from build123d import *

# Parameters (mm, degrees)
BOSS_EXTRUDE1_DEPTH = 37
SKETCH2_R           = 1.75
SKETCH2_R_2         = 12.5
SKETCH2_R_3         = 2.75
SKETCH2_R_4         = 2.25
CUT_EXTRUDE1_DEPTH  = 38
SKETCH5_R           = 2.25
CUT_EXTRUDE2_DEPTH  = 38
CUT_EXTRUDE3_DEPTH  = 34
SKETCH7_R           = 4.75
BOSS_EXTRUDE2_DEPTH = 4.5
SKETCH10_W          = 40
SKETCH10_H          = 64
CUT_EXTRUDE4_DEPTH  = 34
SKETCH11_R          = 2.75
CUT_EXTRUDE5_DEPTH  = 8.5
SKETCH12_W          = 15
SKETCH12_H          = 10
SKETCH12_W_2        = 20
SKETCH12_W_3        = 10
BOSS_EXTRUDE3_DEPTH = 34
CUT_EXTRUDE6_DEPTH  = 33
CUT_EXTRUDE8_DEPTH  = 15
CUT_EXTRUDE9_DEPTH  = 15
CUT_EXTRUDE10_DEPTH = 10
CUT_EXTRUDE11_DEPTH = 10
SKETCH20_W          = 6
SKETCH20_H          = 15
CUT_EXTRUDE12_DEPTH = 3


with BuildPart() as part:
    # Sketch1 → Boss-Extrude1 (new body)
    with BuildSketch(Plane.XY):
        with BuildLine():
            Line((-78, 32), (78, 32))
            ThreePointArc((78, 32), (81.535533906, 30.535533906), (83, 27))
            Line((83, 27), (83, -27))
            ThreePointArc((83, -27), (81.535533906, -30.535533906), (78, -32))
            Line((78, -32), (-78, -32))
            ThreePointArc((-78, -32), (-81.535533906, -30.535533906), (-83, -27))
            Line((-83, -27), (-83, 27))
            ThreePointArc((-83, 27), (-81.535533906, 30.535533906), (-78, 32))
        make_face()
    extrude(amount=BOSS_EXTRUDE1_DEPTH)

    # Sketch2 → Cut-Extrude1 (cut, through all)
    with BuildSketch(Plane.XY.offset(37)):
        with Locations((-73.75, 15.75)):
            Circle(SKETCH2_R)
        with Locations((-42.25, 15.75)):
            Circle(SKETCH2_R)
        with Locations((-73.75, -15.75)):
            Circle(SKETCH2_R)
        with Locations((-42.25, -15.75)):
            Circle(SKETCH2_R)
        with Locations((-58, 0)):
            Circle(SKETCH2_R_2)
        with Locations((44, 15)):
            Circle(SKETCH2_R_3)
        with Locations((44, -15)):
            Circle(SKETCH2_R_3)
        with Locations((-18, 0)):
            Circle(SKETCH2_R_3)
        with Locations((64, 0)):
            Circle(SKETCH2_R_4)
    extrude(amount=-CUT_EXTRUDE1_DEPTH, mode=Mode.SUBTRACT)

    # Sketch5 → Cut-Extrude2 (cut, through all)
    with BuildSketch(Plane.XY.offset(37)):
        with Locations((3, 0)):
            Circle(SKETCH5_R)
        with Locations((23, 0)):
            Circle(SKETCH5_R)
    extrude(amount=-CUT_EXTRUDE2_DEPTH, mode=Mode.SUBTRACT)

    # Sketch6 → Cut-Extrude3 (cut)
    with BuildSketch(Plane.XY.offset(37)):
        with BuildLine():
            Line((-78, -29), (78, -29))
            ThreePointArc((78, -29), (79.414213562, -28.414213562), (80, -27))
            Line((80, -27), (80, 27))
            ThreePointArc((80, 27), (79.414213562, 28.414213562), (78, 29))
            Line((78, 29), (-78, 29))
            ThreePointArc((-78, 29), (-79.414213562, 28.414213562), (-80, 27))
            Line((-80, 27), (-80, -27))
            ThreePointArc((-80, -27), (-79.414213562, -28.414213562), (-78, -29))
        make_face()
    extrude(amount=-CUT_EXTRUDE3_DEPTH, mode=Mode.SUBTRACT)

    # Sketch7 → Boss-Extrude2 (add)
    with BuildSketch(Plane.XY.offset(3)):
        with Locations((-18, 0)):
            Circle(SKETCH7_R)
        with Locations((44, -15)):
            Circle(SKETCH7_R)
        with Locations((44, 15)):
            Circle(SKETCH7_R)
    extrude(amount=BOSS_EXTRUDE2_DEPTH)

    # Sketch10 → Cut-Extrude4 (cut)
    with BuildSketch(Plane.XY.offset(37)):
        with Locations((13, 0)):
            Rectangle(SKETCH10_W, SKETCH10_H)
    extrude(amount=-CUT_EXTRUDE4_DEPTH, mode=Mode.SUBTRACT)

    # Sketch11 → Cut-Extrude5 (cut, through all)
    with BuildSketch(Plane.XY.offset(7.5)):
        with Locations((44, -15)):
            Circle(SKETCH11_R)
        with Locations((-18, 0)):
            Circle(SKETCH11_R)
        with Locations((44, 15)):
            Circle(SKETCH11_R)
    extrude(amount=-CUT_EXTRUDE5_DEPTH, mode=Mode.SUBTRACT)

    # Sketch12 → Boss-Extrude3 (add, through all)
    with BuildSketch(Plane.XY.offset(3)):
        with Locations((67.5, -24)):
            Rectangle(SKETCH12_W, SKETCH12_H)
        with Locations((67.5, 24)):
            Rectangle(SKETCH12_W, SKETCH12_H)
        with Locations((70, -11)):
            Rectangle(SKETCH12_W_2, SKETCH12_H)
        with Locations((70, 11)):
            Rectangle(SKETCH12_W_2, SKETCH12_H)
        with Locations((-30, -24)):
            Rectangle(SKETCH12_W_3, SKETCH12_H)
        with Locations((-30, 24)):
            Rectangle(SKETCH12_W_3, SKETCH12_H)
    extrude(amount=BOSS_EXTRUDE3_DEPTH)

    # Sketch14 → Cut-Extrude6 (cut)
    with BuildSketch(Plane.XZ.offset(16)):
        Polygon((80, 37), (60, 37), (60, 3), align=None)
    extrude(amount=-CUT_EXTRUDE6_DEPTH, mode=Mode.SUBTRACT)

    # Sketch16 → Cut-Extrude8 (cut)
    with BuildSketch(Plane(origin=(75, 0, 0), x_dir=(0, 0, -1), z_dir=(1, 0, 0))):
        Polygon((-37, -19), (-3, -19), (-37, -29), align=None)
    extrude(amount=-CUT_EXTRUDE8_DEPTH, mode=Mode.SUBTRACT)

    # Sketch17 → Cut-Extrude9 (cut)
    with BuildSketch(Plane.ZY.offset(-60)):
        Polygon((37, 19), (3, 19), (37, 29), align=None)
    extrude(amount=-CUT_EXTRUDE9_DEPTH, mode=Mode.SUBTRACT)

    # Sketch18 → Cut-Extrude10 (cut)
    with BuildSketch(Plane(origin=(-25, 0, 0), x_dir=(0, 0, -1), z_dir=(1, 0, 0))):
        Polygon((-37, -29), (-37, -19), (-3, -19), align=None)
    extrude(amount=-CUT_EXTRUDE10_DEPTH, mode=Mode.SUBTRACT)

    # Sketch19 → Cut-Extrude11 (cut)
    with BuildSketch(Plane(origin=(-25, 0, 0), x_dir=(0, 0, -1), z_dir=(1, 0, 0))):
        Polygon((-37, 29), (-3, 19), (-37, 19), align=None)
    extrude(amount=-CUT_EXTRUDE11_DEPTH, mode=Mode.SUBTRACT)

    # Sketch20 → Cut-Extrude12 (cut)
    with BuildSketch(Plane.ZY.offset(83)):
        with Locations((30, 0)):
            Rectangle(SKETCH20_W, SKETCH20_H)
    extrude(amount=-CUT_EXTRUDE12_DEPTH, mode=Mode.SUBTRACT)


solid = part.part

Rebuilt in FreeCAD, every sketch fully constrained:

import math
import FreeCAD as App
import Part
import Sketcher
from FreeCAD import Vector
Q = App.Units.Quantity

doc = App.newDocument("Part")
body = doc.addObject("PartDesign::Body", "Body")

# Sketch on XY plane
sketch1 = doc.addObject("Sketcher::SketchObject", "Sketch")
body.addObject(sketch1)
sketch1.AttachmentSupport = (doc.XY_Plane, [""])
sketch1.MapMode = "FlatFace"
sketch1.addGeometry([
    Part.LineSegment(Vector(78, 32, 0), Vector(-78, 32, 0)),  # 0
    Part.ArcOfCircle(Part.Circle(Vector(-78, 27, 0), Vector(0, 0, 1), 5), math.radians(90), math.radians(180)),  # 1
    Part.LineSegment(Vector(-83, 27, 0), Vector(-83, -27, 0)),  # 2
    Part.ArcOfCircle(Part.Circle(Vector(-78, -27, 0), Vector(0, 0, 1), 5), math.radians(180), math.radians(270)),  # 3
    Part.LineSegment(Vector(-78, -32, 0), Vector(78, -32, 0)),  # 4
    Part.ArcOfCircle(Part.Circle(Vector(78, -27, 0), Vector(0, 0, 1), 5), math.radians(-90), math.radians(0)),  # 5
    Part.LineSegment(Vector(83, -27, 0), Vector(83, 27, 0)),  # 6
    Part.ArcOfCircle(Part.Circle(Vector(78, 27, 0), Vector(0, 0, 1), 5), math.radians(0), math.radians(90)),  # 7
], False)
sketch1.addConstraint([
    Sketcher.Constraint("Tangent", 0, 2, 1, 1),
    Sketcher.Constraint("Tangent", 1, 2, 2, 1),
    Sketcher.Constraint("Tangent", 2, 2, 3, 1),
    Sketcher.Constraint("Tangent", 3, 2, 4, 1),
    Sketcher.Constraint("Tangent", 4, 2, 5, 1),
    Sketcher.Constraint("Tangent", 5, 2, 6, 1),
    Sketcher.Constraint("Tangent", 6, 2, 7, 1),
    Sketcher.Constraint("Tangent", 7, 2, 0, 1),
    Sketcher.Constraint("Horizontal", 0),
    Sketcher.Constraint("Vertical", 2),
    Sketcher.Constraint("Horizontal", 4),
    Sketcher.Constraint("Vertical", 6),
    Sketcher.Constraint("Equal", 1, 3),
    Sketcher.Constraint("Equal", 3, 5),
    Sketcher.Constraint("Equal", 5, 7),
    Sketcher.Constraint("Symmetric", 1, 3, 5, 3, -1, 1),
    Sketcher.Constraint("Radius", 1, Q("5 mm")),
    Sketcher.Constraint("DistanceX", 0, 2, 0, 1, Q("156 mm")),
    Sketcher.Constraint("DistanceY", 2, 2, 2, 1, Q("54 mm")),
])
pad1 = doc.addObject("PartDesign::Pad", "Pad")
body.addObject(pad1)
pad1.Profile = sketch1
pad1.Length = 37

# Sketch on XY plane
sketch2 = doc.addObject("Sketcher::SketchObject", "Sketch001")
body.addObject(sketch2)
sketch2.AttachmentSupport = (doc.XY_Plane, [""])
sketch2.MapMode = "FlatFace"
sketch2.AttachmentOffset = App.Placement(Vector(0, 0, 37), App.Rotation())
sketch2.addGeometry([
    Part.Circle(Vector(-73.8, 15.8, 0), Vector(0, 0, 1), 1.8),  # 0
    Part.Circle(Vector(-42.2, 15.8, 0), Vector(0, 0, 1), 1.8),  # 1
    Part.Circle(Vector(-73.8, -15.8, 0), Vector(0, 0, 1), 1.8),  # 2
    Part.Circle(Vector(-42.2, -15.8, 0), Vector(0, 0, 1), 1.8),  # 3
    Part.Circle(Vector(-58, 0, 0), Vector(0, 0, 1), 12.5),  # 4
    Part.Circle(Vector(44, 15, 0), Vector(0, 0, 1), 2.8),  # 5
    Part.Circle(Vector(44, -15, 0), Vector(0, 0, 1), 2.8),  # 6
    Part.Circle(Vector(-18, 0, 0), Vector(0, 0, 1), 2.8),  # 7
    Part.Circle(Vector(64, 0, 0), Vector(0, 0, 1), 2.2),  # 8
], False)
sketch2.addConstraint([
    Sketcher.Constraint("Equal", 0, 1),
    Sketcher.Constraint("Equal", 1, 2),
    Sketcher.Constraint("Equal", 2, 3),
    Sketcher.Constraint("Equal", 5, 6),
    Sketcher.Constraint("Equal", 6, 7),
    Sketcher.Constraint("Symmetric", 0, 3, 2, 3, -1),
    Sketcher.Constraint("Symmetric", 1, 3, 3, 3, -1),
    Sketcher.Constraint("Symmetric", 5, 3, 6, 3, -1),
    Sketcher.Constraint("PointOnObject", 4, 3, -1),
    Sketcher.Constraint("PointOnObject", 7, 3, -1),
    Sketcher.Constraint("PointOnObject", 8, 3, -1),
    Sketcher.Constraint("Horizontal", 0, 3, 1, 3),
    Sketcher.Constraint("Diameter", 4, Q("25 mm")),
    Sketcher.Constraint("Diameter", 0, Q("3.5 mm")),
    Sketcher.Constraint("Diameter", 5, Q("5.5 mm")),
    Sketcher.Constraint("Diameter", 8, Q("4.5 mm")),
    Sketcher.Constraint("DistanceX", 4, 3, -1, 1, Q("58 mm")),
    Sketcher.Constraint("DistanceX", -1, 1, 5, 3, Q("44 mm")),
    Sketcher.Constraint("DistanceY", -1, 1, 5, 3, Q("15 mm")),
    Sketcher.Constraint("DistanceX", 7, 3, -1, 1, Q("18 mm")),
    Sketcher.Constraint("DistanceX", -1, 1, 8, 3, Q("64 mm")),
    Sketcher.Constraint("DistanceX", 0, 3, 1, 3, Q("31.5 mm")),
    Sketcher.Constraint("DistanceY", 2, 3, 0, 3, Q("31.5 mm")),
    Sketcher.Constraint("DistanceX", 0, 3, -1, 1, Q("73.75 mm")),
])
pocket1 = doc.addObject("PartDesign::Pocket", "Pocket")
body.addObject(pocket1)
pocket1.Profile = sketch2
pocket1.Type = "ThroughAll"

# Sketch on XY plane
sketch3 = doc.addObject("Sketcher::SketchObject", "Sketch002")
body.addObject(sketch3)
sketch3.AttachmentSupport = (doc.XY_Plane, [""])
sketch3.MapMode = "FlatFace"
sketch3.AttachmentOffset = App.Placement(Vector(0, 0, 37), App.Rotation())
sketch3.addGeometry([
    Part.Circle(Vector(3, 0, 0), Vector(0, 0, 1), 2.2),
    Part.Circle(Vector(23, 0, 0), Vector(0, 0, 1), 2.2),
], False)
sketch3.addConstraint([
    Sketcher.Constraint("Equal", 0, 1),
    Sketcher.Constraint("PointOnObject", 0, 3, -1),
    Sketcher.Constraint("PointOnObject", 1, 3, -1),
    Sketcher.Constraint("Diameter", 0, Q("4.5 mm")),
    Sketcher.Constraint("DistanceX", -1, 1, 0, 3, Q("3 mm")),
    Sketcher.Constraint("DistanceX", -1, 1, 1, 3, Q("23 mm")),
])
pocket2 = doc.addObject("PartDesign::Pocket", "Pocket001")
body.addObject(pocket2)
pocket2.Profile = sketch3
pocket2.Type = "ThroughAll"

# Sketch on XY plane
sketch4 = doc.addObject("Sketcher::SketchObject", "Sketch003")
body.addObject(sketch4)
sketch4.AttachmentSupport = (doc.XY_Plane, [""])
sketch4.MapMode = "FlatFace"
sketch4.AttachmentOffset = App.Placement(Vector(0, 0, 37), App.Rotation())
sketch4.addGeometry([
    Part.LineSegment(Vector(-78, -29, 0), Vector(78, -29, 0)),  # 0
    Part.ArcOfCircle(Part.Circle(Vector(78, -27, 0), Vector(0, 0, 1), 2), math.radians(-90), math.radians(0)),  # 1
    Part.LineSegment(Vector(80, -27, 0), Vector(80, 27, 0)),  # 2
    Part.ArcOfCircle(Part.Circle(Vector(78, 27, 0), Vector(0, 0, 1), 2), math.radians(0), math.radians(90)),  # 3
    Part.LineSegment(Vector(78, 29, 0), Vector(-78, 29, 0)),  # 4
    Part.ArcOfCircle(Part.Circle(Vector(-78, 27, 0), Vector(0, 0, 1), 2), math.radians(90), math.radians(180)),  # 5
    Part.LineSegment(Vector(-80, 27, 0), Vector(-80, -27, 0)),  # 6
    Part.ArcOfCircle(Part.Circle(Vector(-78, -27, 0), Vector(0, 0, 1), 2), math.radians(-180), math.radians(-90)),  # 7
], False)
sketch4.addConstraint([
    Sketcher.Constraint("Tangent", 0, 2, 1, 1),
    Sketcher.Constraint("Tangent", 1, 2, 2, 1),
    Sketcher.Constraint("Tangent", 2, 2, 3, 1),
    Sketcher.Constraint("Tangent", 3, 2, 4, 1),
    Sketcher.Constraint("Tangent", 4, 2, 5, 1),
    Sketcher.Constraint("Tangent", 5, 2, 6, 1),
    Sketcher.Constraint("Tangent", 6, 2, 7, 1),
    Sketcher.Constraint("Tangent", 7, 2, 0, 1),
    Sketcher.Constraint("Horizontal", 0),
    Sketcher.Constraint("Vertical", 2),
    Sketcher.Constraint("Horizontal", 4),
    Sketcher.Constraint("Vertical", 6),
    Sketcher.Constraint("Equal", 1, 3),
    Sketcher.Constraint("Equal", 3, 5),
    Sketcher.Constraint("Equal", 5, 7),
    Sketcher.Constraint("Symmetric", 1, 3, 5, 3, -1, 1),
    Sketcher.Constraint("Radius", 1, Q("2 mm")),
    Sketcher.Constraint("DistanceX", 0, 1, 0, 2, Q("156 mm")),
    Sketcher.Constraint("DistanceY", 2, 1, 2, 2, Q("54 mm")),
])
pocket3 = doc.addObject("PartDesign::Pocket", "Pocket002")
body.addObject(pocket3)
pocket3.Profile = sketch4
pocket3.Length = 34

# Sketch on XY plane
sketch5 = doc.addObject("Sketcher::SketchObject", "Sketch004")
body.addObject(sketch5)
sketch5.AttachmentSupport = (doc.XY_Plane, [""])
sketch5.MapMode = "FlatFace"
sketch5.AttachmentOffset = App.Placement(Vector(0, 0, 3), App.Rotation())
sketch5.addGeometry([
    Part.Circle(Vector(-18, 0, 0), Vector(0, 0, 1), 4.8),
    Part.Circle(Vector(44, -15, 0), Vector(0, 0, 1), 4.8),
    Part.Circle(Vector(44, 15, 0), Vector(0, 0, 1), 4.8),
], False)
sketch5.addConstraint([
    Sketcher.Constraint("Equal", 0, 1),
    Sketcher.Constraint("Equal", 1, 2),
    Sketcher.Constraint("Symmetric", 1, 3, 2, 3, -1),
    Sketcher.Constraint("PointOnObject", 0, 3, -1),
    Sketcher.Constraint("Diameter", 0, Q("9.5 mm")),
    Sketcher.Constraint("DistanceX", 0, 3, -1, 1, Q("18 mm")),
    Sketcher.Constraint("DistanceX", -1, 1, 1, 3, Q("44 mm")),
    Sketcher.Constraint("DistanceY", 1, 3, -1, 1, Q("15 mm")),
])
pad2 = doc.addObject("PartDesign::Pad", "Pad001")
body.addObject(pad2)
pad2.Profile = sketch5
pad2.Length = 4.5

# Sketch on XY plane
sketch6 = doc.addObject("Sketcher::SketchObject", "Sketch005")
body.addObject(sketch6)
sketch6.AttachmentSupport = (doc.XY_Plane, [""])
sketch6.MapMode = "FlatFace"
sketch6.AttachmentOffset = App.Placement(Vector(0, 0, 37), App.Rotation())
sketch6.addGeometry([
    Part.LineSegment(Vector(-7, 32, 0), Vector(-7, -32, 0)),
    Part.LineSegment(Vector(-7, -32, 0), Vector(33, -32, 0)),
    Part.LineSegment(Vector(33, -32, 0), Vector(33, 32, 0)),
    Part.LineSegment(Vector(33, 32, 0), Vector(-7, 32, 0)),
], False)
sketch6.addConstraint([
    Sketcher.Constraint("Coincident", 0, 2, 1, 1),
    Sketcher.Constraint("Coincident", 1, 2, 2, 1),
    Sketcher.Constraint("Coincident", 2, 2, 3, 1),
    Sketcher.Constraint("Coincident", 3, 2, 0, 1),
    Sketcher.Constraint("Vertical", 0),
    Sketcher.Constraint("Horizontal", 1),
    Sketcher.Constraint("Vertical", 2),
    Sketcher.Constraint("Horizontal", 3),
    Sketcher.Constraint("DistanceX", 1, 1, 1, 2, Q("40 mm")),
    Sketcher.Constraint("DistanceY", 0, 2, 0, 1, Q("64 mm")),
    Sketcher.Constraint("DistanceX", 0, 2, -1, 1, Q("7 mm")),
    Sketcher.Constraint("DistanceY", 0, 2, -1, 1, Q("32 mm")),
])
pocket4 = doc.addObject("PartDesign::Pocket", "Pocket003")
body.addObject(pocket4)
pocket4.Profile = sketch6
pocket4.Length = 34

# Sketch on XY plane
sketch7 = doc.addObject("Sketcher::SketchObject", "Sketch006")
body.addObject(sketch7)
sketch7.AttachmentSupport = (doc.XY_Plane, [""])
sketch7.MapMode = "FlatFace"
sketch7.AttachmentOffset = App.Placement(Vector(0, 0, 7.5), App.Rotation())
sketch7.addGeometry([
    Part.Circle(Vector(44, -15, 0), Vector(0, 0, 1), 2.8),
    Part.Circle(Vector(-18, 0, 0), Vector(0, 0, 1), 2.8),
    Part.Circle(Vector(44, 15, 0), Vector(0, 0, 1), 2.8),
], False)
sketch7.addConstraint([
    Sketcher.Constraint("Equal", 0, 1),
    Sketcher.Constraint("Equal", 1, 2),
    Sketcher.Constraint("Symmetric", 0, 3, 2, 3, -1),
    Sketcher.Constraint("PointOnObject", 1, 3, -1),
    Sketcher.Constraint("Diameter", 0, Q("5.5 mm")),
    Sketcher.Constraint("DistanceX", -1, 1, 0, 3, Q("44 mm")),
    Sketcher.Constraint("DistanceY", 0, 3, -1, 1, Q("15 mm")),
    Sketcher.Constraint("DistanceX", 1, 3, -1, 1, Q("18 mm")),
])
pocket5 = doc.addObject("PartDesign::Pocket", "Pocket004")
body.addObject(pocket5)
pocket5.Profile = sketch7
pocket5.Type = "ThroughAll"

# Sketch on XY plane
sketch8 = doc.addObject("Sketcher::SketchObject", "Sketch007")
body.addObject(sketch8)
sketch8.AttachmentSupport = (doc.XY_Plane, [""])
sketch8.MapMode = "FlatFace"
sketch8.AttachmentOffset = App.Placement(Vector(0, 0, 3), App.Rotation())
sketch8.addGeometry([
    Part.LineSegment(Vector(60, -19, 0), Vector(60, -29, 0)),  # 0
    Part.LineSegment(Vector(60, -29, 0), Vector(75, -29, 0)),  # 1
    Part.LineSegment(Vector(75, -29, 0), Vector(75, -19, 0)),  # 2
    Part.LineSegment(Vector(75, -19, 0), Vector(60, -19, 0)),  # 3
    Part.LineSegment(Vector(60, 29, 0), Vector(60, 19, 0)),  # 4
    Part.LineSegment(Vector(60, 19, 0), Vector(75, 19, 0)),  # 5
    Part.LineSegment(Vector(75, 19, 0), Vector(75, 29, 0)),  # 6
    Part.LineSegment(Vector(75, 29, 0), Vector(60, 29, 0)),  # 7
    Part.LineSegment(Vector(60, -6, 0), Vector(60, -16, 0)),  # 8
    Part.LineSegment(Vector(60, -16, 0), Vector(80, -16, 0)),  # 9
    Part.LineSegment(Vector(80, -16, 0), Vector(80, -6, 0)),  # 10
    Part.LineSegment(Vector(80, -6, 0), Vector(60, -6, 0)),  # 11
    Part.LineSegment(Vector(60, 16, 0), Vector(60, 6, 0)),  # 12
    Part.LineSegment(Vector(60, 6, 0), Vector(80, 6, 0)),  # 13
    Part.LineSegment(Vector(80, 6, 0), Vector(80, 16, 0)),  # 14
    Part.LineSegment(Vector(80, 16, 0), Vector(60, 16, 0)),  # 15
    Part.LineSegment(Vector(-35, -19, 0), Vector(-35, -29, 0)),  # 16
    Part.LineSegment(Vector(-35, -29, 0), Vector(-25, -29, 0)),  # 17
    Part.LineSegment(Vector(-25, -29, 0), Vector(-25, -19, 0)),  # 18
    Part.LineSegment(Vector(-25, -19, 0), Vector(-35, -19, 0)),  # 19
    Part.LineSegment(Vector(-35, 29, 0), Vector(-35, 19, 0)),  # 20
    Part.LineSegment(Vector(-35, 19, 0), Vector(-25, 19, 0)),  # 21
    Part.LineSegment(Vector(-25, 19, 0), Vector(-25, 29, 0)),  # 22
    Part.LineSegment(Vector(-25, 29, 0), Vector(-35, 29, 0)),  # 23
], False)
sketch8.addConstraint([
    Sketcher.Constraint("Coincident", 0, 2, 1, 1),
    Sketcher.Constraint("Coincident", 1, 2, 2, 1),
    Sketcher.Constraint("Coincident", 2, 2, 3, 1),
    Sketcher.Constraint("Coincident", 3, 2, 0, 1),
    Sketcher.Constraint("Coincident", 4, 2, 5, 1),
    Sketcher.Constraint("Coincident", 5, 2, 6, 1),
    Sketcher.Constraint("Coincident", 6, 2, 7, 1),
    Sketcher.Constraint("Coincident", 7, 2, 4, 1),
    Sketcher.Constraint("Coincident", 8, 2, 9, 1),
    Sketcher.Constraint("Coincident", 9, 2, 10, 1),
    Sketcher.Constraint("Coincident", 10, 2, 11, 1),
    Sketcher.Constraint("Coincident", 11, 2, 8, 1),
    Sketcher.Constraint("Coincident", 12, 2, 13, 1),
    Sketcher.Constraint("Coincident", 13, 2, 14, 1),
    Sketcher.Constraint("Coincident", 14, 2, 15, 1),
    Sketcher.Constraint("Coincident", 15, 2, 12, 1),
    Sketcher.Constraint("Coincident", 16, 2, 17, 1),
    Sketcher.Constraint("Coincident", 17, 2, 18, 1),
    Sketcher.Constraint("Coincident", 18, 2, 19, 1),
    Sketcher.Constraint("Coincident", 19, 2, 16, 1),
    Sketcher.Constraint("Coincident", 20, 2, 21, 1),
    Sketcher.Constraint("Coincident", 21, 2, 22, 1),
    Sketcher.Constraint("Coincident", 22, 2, 23, 1),
    Sketcher.Constraint("Coincident", 23, 2, 20, 1),
    Sketcher.Constraint("Vertical", 0),
    Sketcher.Constraint("Horizontal", 1),
    Sketcher.Constraint("Vertical", 2),
    Sketcher.Constraint("Horizontal", 3),
    Sketcher.Constraint("Vertical", 4),
    Sketcher.Constraint("Horizontal", 5),
    Sketcher.Constraint("Vertical", 6),
    Sketcher.Constraint("Horizontal", 7),
    Sketcher.Constraint("Vertical", 8),
    Sketcher.Constraint("Horizontal", 9),
    Sketcher.Constraint("Vertical", 10),
    Sketcher.Constraint("Horizontal", 11),
    Sketcher.Constraint("Vertical", 12),
    Sketcher.Constraint("Horizontal", 13),
    Sketcher.Constraint("Vertical", 14),
    Sketcher.Constraint("Horizontal", 15),
    Sketcher.Constraint("Vertical", 16),
    Sketcher.Constraint("Horizontal", 17),
    Sketcher.Constraint("Vertical", 18),
    Sketcher.Constraint("Horizontal", 19),
    Sketcher.Constraint("Vertical", 20),
    Sketcher.Constraint("Horizontal", 21),
    Sketcher.Constraint("Vertical", 22),
    Sketcher.Constraint("Horizontal", 23),
    Sketcher.Constraint("Symmetric", 3, 2, 4, 2, -1),
    Sketcher.Constraint("Symmetric", 1, 2, 6, 2, -1),
    Sketcher.Constraint("Symmetric", 11, 2, 12, 2, -1),
    Sketcher.Constraint("Symmetric", 9, 2, 14, 2, -1),
    Sketcher.Constraint("Symmetric", 19, 2, 20, 2, -1),
    Sketcher.Constraint("Symmetric", 17, 2, 22, 2, -1),
    Sketcher.Constraint("Horizontal", 1, 2, 16, 2),
    Sketcher.Constraint("Horizontal", 3, 2, 18, 2),
    Sketcher.Constraint("Vertical", 7, 2, 8, 2),
    Sketcher.Constraint("Equal", 23, 0),
    Sketcher.Constraint("Equal", 6, 8),
    Sketcher.Constraint("DistanceX", 1, 1, 1, 2, Q("15 mm")),
    Sketcher.Constraint("DistanceX", 9, 1, 9, 2, Q("20 mm")),
    Sketcher.Constraint("DistanceX", 17, 1, 17, 2, Q("10 mm")),
    Sketcher.Constraint("DistanceX", -1, 1, 0, 2, Q("60 mm")),
    Sketcher.Constraint("DistanceY", 0, 2, -1, 1, Q("29 mm")),
    Sketcher.Constraint("DistanceY", 8, 2, -1, 1, Q("16 mm")),
    Sketcher.Constraint("DistanceX", 16, 2, -1, 1, Q("35 mm")),
])
pad3 = doc.addObject("PartDesign::Pad", "Pad002")
body.addObject(pad3)
pad3.Profile = sketch8
pad3.Length = 34

# Sketch on XZ plane
sketch9 = doc.addObject("Sketcher::SketchObject", "Sketch008")
body.addObject(sketch9)
sketch9.AttachmentSupport = (doc.XZ_Plane, [""])
sketch9.MapMode = "FlatFace"
sketch9.AttachmentOffset = App.Placement(Vector(0, 0, 16), App.Rotation())
sketch9.addGeometry([
    Part.LineSegment(Vector(80, 37, 0), Vector(60, 37, 0)),
    Part.LineSegment(Vector(60, 37, 0), Vector(60, 3, 0)),
    Part.LineSegment(Vector(60, 3, 0), Vector(80, 37, 0)),
], False)
sketch9.addConstraint([
    Sketcher.Constraint("Coincident", 0, 2, 1, 1),
    Sketcher.Constraint("Coincident", 1, 2, 2, 1),
    Sketcher.Constraint("Coincident", 2, 2, 0, 1),
    Sketcher.Constraint("Horizontal", 0),
    Sketcher.Constraint("Vertical", 1),
    Sketcher.Constraint("DistanceX", 0, 2, 0, 1, Q("20 mm")),
    Sketcher.Constraint("DistanceY", 1, 2, 1, 1, Q("34 mm")),
    Sketcher.Constraint("DistanceX", -1, 1, 0, 2, Q("60 mm")),
    Sketcher.Constraint("DistanceY", -1, 1, 0, 2, Q("37 mm")),
])
pocket6 = doc.addObject("PartDesign::Pocket", "Pocket005")
body.addObject(pocket6)
pocket6.Profile = sketch9
pocket6.Length = 33

# Sketch on YZ plane
sketch10 = doc.addObject("Sketcher::SketchObject", "Sketch009")
body.addObject(sketch10)
sketch10.AttachmentSupport = (doc.YZ_Plane, [""])
sketch10.MapMode = "FlatFace"
sketch10.AttachmentOffset = App.Placement(Vector(0, 0, 75), App.Rotation())
sketch10.addGeometry([
    Part.LineSegment(Vector(-19, 3, 0), Vector(-19, 37, 0)),
    Part.LineSegment(Vector(-19, 37, 0), Vector(-29, 37, 0)),
    Part.LineSegment(Vector(-29, 37, 0), Vector(-19, 3, 0)),
], False)
sketch10.addConstraint([
    Sketcher.Constraint("Coincident", 0, 2, 1, 1),
    Sketcher.Constraint("Coincident", 1, 2, 2, 1),
    Sketcher.Constraint("Coincident", 2, 2, 0, 1),
    Sketcher.Constraint("Vertical", 0),
    Sketcher.Constraint("Horizontal", 1),
    Sketcher.Constraint("DistanceX", 1, 2, 1, 1, Q("10 mm")),
    Sketcher.Constraint("DistanceY", 0, 1, 0, 2, Q("34 mm")),
    Sketcher.Constraint("DistanceX", 0, 2, -1, 1, Q("19 mm")),
    Sketcher.Constraint("DistanceY", -1, 1, 0, 2, Q("37 mm")),
])
pocket7 = doc.addObject("PartDesign::Pocket", "Pocket006")
body.addObject(pocket7)
pocket7.Profile = sketch10
pocket7.Length = 15

# Sketch on YZ plane
sketch11 = doc.addObject("Sketcher::SketchObject", "Sketch010")
body.addObject(sketch11)
sketch11.AttachmentSupport = (doc.YZ_Plane, [""])
sketch11.MapMode = "FlatFace"
sketch11.AttachmentOffset = App.Placement(Vector(0, 0, 60), App.Rotation())
sketch11.addGeometry([
    Part.LineSegment(Vector(19, 3, 0), Vector(19, 37, 0)),
    Part.LineSegment(Vector(19, 37, 0), Vector(29, 37, 0)),
    Part.LineSegment(Vector(29, 37, 0), Vector(19, 3, 0)),
], False)
sketch11.addConstraint([
    Sketcher.Constraint("Coincident", 0, 2, 1, 1),
    Sketcher.Constraint("Coincident", 1, 2, 2, 1),
    Sketcher.Constraint("Coincident", 2, 2, 0, 1),
    Sketcher.Constraint("Vertical", 0),
    Sketcher.Constraint("Horizontal", 1),
    Sketcher.Constraint("DistanceX", 1, 1, 1, 2, Q("10 mm")),
    Sketcher.Constraint("DistanceY", 0, 1, 0, 2, Q("34 mm")),
    Sketcher.Constraint("DistanceX", -1, 1, 0, 2, Q("19 mm")),
    Sketcher.Constraint("DistanceY", -1, 1, 0, 2, Q("37 mm")),
])
pocket8 = doc.addObject("PartDesign::Pocket", "Pocket007")
body.addObject(pocket8)
pocket8.Profile = sketch11
pocket8.Length = 15
pocket8.Reversed = True

# Sketch on YZ plane
sketch12 = doc.addObject("Sketcher::SketchObject", "Sketch011")
body.addObject(sketch12)
sketch12.AttachmentSupport = (doc.YZ_Plane, [""])
sketch12.MapMode = "FlatFace"
sketch12.AttachmentOffset = App.Placement(Vector(0, 0, -25), App.Rotation())
sketch12.addGeometry([
    Part.LineSegment(Vector(-19, 37, 0), Vector(-29, 37, 0)),
    Part.LineSegment(Vector(-29, 37, 0), Vector(-19, 3, 0)),
    Part.LineSegment(Vector(-19, 3, 0), Vector(-19, 37, 0)),
], False)
sketch12.addConstraint([
    Sketcher.Constraint("Coincident", 0, 2, 1, 1),
    Sketcher.Constraint("Coincident", 1, 2, 2, 1),
    Sketcher.Constraint("Coincident", 2, 2, 0, 1),
    Sketcher.Constraint("Horizontal", 0),
    Sketcher.Constraint("Vertical", 2),
    Sketcher.Constraint("DistanceX", 0, 2, 0, 1, Q("10 mm")),
    Sketcher.Constraint("DistanceY", 2, 1, 2, 2, Q("34 mm")),
    Sketcher.Constraint("DistanceX", 0, 2, -1, 1, Q("29 mm")),
    Sketcher.Constraint("DistanceY", -1, 1, 0, 2, Q("37 mm")),
])
pocket9 = doc.addObject("PartDesign::Pocket", "Pocket008")
body.addObject(pocket9)
pocket9.Profile = sketch12
pocket9.Length = 10

# Sketch on YZ plane
sketch13 = doc.addObject("Sketcher::SketchObject", "Sketch012")
body.addObject(sketch13)
sketch13.AttachmentSupport = (doc.YZ_Plane, [""])
sketch13.MapMode = "FlatFace"
sketch13.AttachmentOffset = App.Placement(Vector(0, 0, -25), App.Rotation())
sketch13.addGeometry([
    Part.LineSegment(Vector(19, 3, 0), Vector(29, 37, 0)),
    Part.LineSegment(Vector(29, 37, 0), Vector(19, 37, 0)),
    Part.LineSegment(Vector(19, 37, 0), Vector(19, 3, 0)),
], False)
sketch13.addConstraint([
    Sketcher.Constraint("Coincident", 0, 2, 1, 1),
    Sketcher.Constraint("Coincident", 1, 2, 2, 1),
    Sketcher.Constraint("Coincident", 2, 2, 0, 1),
    Sketcher.Constraint("Horizontal", 1),
    Sketcher.Constraint("Vertical", 2),
    Sketcher.Constraint("DistanceX", 1, 2, 1, 1, Q("10 mm")),
    Sketcher.Constraint("DistanceY", 2, 2, 2, 1, Q("34 mm")),
    Sketcher.Constraint("DistanceX", -1, 1, 0, 2, Q("29 mm")),
    Sketcher.Constraint("DistanceY", -1, 1, 0, 2, Q("37 mm")),
])
pocket10 = doc.addObject("PartDesign::Pocket", "Pocket009")
body.addObject(pocket10)
pocket10.Profile = sketch13
pocket10.Length = 10

# Sketch on YZ plane
sketch14 = doc.addObject("Sketcher::SketchObject", "Sketch013")
body.addObject(sketch14)
sketch14.AttachmentSupport = (doc.YZ_Plane, [""])
sketch14.MapMode = "FlatFace"
sketch14.AttachmentOffset = App.Placement(Vector(0, 0, -83), App.Rotation())
sketch14.addGeometry([
    Part.LineSegment(Vector(8, 27, 0), Vector(-8, 27, 0)),
    Part.LineSegment(Vector(-8, 27, 0), Vector(-8, 33, 0)),
    Part.LineSegment(Vector(-8, 33, 0), Vector(8, 33, 0)),
    Part.LineSegment(Vector(8, 33, 0), Vector(8, 27, 0)),
], False)
sketch14.addConstraint([
    Sketcher.Constraint("Coincident", 0, 2, 1, 1),
    Sketcher.Constraint("Coincident", 1, 2, 2, 1),
    Sketcher.Constraint("Coincident", 2, 2, 3, 1),
    Sketcher.Constraint("Coincident", 3, 2, 0, 1),
    Sketcher.Constraint("Horizontal", 0),
    Sketcher.Constraint("Vertical", 1),
    Sketcher.Constraint("Horizontal", 2),
    Sketcher.Constraint("Vertical", 3),
    Sketcher.Constraint("DistanceX", 0, 2, 0, 1, Q("15 mm")),
    Sketcher.Constraint("DistanceY", 1, 1, 1, 2, Q("6 mm")),
    Sketcher.Constraint("DistanceY", -1, 1, 0, 2, Q("27 mm")),
    Sketcher.Constraint("DistanceX", 0, 2, -1, 1, Q("7.5 mm")),
])
pocket11 = doc.addObject("PartDesign::Pocket", "Pocket010")
body.addObject(pocket11)
pocket11.Profile = sketch14
pocket11.Length = 3
pocket11.Reversed = True

doc.recompute()
